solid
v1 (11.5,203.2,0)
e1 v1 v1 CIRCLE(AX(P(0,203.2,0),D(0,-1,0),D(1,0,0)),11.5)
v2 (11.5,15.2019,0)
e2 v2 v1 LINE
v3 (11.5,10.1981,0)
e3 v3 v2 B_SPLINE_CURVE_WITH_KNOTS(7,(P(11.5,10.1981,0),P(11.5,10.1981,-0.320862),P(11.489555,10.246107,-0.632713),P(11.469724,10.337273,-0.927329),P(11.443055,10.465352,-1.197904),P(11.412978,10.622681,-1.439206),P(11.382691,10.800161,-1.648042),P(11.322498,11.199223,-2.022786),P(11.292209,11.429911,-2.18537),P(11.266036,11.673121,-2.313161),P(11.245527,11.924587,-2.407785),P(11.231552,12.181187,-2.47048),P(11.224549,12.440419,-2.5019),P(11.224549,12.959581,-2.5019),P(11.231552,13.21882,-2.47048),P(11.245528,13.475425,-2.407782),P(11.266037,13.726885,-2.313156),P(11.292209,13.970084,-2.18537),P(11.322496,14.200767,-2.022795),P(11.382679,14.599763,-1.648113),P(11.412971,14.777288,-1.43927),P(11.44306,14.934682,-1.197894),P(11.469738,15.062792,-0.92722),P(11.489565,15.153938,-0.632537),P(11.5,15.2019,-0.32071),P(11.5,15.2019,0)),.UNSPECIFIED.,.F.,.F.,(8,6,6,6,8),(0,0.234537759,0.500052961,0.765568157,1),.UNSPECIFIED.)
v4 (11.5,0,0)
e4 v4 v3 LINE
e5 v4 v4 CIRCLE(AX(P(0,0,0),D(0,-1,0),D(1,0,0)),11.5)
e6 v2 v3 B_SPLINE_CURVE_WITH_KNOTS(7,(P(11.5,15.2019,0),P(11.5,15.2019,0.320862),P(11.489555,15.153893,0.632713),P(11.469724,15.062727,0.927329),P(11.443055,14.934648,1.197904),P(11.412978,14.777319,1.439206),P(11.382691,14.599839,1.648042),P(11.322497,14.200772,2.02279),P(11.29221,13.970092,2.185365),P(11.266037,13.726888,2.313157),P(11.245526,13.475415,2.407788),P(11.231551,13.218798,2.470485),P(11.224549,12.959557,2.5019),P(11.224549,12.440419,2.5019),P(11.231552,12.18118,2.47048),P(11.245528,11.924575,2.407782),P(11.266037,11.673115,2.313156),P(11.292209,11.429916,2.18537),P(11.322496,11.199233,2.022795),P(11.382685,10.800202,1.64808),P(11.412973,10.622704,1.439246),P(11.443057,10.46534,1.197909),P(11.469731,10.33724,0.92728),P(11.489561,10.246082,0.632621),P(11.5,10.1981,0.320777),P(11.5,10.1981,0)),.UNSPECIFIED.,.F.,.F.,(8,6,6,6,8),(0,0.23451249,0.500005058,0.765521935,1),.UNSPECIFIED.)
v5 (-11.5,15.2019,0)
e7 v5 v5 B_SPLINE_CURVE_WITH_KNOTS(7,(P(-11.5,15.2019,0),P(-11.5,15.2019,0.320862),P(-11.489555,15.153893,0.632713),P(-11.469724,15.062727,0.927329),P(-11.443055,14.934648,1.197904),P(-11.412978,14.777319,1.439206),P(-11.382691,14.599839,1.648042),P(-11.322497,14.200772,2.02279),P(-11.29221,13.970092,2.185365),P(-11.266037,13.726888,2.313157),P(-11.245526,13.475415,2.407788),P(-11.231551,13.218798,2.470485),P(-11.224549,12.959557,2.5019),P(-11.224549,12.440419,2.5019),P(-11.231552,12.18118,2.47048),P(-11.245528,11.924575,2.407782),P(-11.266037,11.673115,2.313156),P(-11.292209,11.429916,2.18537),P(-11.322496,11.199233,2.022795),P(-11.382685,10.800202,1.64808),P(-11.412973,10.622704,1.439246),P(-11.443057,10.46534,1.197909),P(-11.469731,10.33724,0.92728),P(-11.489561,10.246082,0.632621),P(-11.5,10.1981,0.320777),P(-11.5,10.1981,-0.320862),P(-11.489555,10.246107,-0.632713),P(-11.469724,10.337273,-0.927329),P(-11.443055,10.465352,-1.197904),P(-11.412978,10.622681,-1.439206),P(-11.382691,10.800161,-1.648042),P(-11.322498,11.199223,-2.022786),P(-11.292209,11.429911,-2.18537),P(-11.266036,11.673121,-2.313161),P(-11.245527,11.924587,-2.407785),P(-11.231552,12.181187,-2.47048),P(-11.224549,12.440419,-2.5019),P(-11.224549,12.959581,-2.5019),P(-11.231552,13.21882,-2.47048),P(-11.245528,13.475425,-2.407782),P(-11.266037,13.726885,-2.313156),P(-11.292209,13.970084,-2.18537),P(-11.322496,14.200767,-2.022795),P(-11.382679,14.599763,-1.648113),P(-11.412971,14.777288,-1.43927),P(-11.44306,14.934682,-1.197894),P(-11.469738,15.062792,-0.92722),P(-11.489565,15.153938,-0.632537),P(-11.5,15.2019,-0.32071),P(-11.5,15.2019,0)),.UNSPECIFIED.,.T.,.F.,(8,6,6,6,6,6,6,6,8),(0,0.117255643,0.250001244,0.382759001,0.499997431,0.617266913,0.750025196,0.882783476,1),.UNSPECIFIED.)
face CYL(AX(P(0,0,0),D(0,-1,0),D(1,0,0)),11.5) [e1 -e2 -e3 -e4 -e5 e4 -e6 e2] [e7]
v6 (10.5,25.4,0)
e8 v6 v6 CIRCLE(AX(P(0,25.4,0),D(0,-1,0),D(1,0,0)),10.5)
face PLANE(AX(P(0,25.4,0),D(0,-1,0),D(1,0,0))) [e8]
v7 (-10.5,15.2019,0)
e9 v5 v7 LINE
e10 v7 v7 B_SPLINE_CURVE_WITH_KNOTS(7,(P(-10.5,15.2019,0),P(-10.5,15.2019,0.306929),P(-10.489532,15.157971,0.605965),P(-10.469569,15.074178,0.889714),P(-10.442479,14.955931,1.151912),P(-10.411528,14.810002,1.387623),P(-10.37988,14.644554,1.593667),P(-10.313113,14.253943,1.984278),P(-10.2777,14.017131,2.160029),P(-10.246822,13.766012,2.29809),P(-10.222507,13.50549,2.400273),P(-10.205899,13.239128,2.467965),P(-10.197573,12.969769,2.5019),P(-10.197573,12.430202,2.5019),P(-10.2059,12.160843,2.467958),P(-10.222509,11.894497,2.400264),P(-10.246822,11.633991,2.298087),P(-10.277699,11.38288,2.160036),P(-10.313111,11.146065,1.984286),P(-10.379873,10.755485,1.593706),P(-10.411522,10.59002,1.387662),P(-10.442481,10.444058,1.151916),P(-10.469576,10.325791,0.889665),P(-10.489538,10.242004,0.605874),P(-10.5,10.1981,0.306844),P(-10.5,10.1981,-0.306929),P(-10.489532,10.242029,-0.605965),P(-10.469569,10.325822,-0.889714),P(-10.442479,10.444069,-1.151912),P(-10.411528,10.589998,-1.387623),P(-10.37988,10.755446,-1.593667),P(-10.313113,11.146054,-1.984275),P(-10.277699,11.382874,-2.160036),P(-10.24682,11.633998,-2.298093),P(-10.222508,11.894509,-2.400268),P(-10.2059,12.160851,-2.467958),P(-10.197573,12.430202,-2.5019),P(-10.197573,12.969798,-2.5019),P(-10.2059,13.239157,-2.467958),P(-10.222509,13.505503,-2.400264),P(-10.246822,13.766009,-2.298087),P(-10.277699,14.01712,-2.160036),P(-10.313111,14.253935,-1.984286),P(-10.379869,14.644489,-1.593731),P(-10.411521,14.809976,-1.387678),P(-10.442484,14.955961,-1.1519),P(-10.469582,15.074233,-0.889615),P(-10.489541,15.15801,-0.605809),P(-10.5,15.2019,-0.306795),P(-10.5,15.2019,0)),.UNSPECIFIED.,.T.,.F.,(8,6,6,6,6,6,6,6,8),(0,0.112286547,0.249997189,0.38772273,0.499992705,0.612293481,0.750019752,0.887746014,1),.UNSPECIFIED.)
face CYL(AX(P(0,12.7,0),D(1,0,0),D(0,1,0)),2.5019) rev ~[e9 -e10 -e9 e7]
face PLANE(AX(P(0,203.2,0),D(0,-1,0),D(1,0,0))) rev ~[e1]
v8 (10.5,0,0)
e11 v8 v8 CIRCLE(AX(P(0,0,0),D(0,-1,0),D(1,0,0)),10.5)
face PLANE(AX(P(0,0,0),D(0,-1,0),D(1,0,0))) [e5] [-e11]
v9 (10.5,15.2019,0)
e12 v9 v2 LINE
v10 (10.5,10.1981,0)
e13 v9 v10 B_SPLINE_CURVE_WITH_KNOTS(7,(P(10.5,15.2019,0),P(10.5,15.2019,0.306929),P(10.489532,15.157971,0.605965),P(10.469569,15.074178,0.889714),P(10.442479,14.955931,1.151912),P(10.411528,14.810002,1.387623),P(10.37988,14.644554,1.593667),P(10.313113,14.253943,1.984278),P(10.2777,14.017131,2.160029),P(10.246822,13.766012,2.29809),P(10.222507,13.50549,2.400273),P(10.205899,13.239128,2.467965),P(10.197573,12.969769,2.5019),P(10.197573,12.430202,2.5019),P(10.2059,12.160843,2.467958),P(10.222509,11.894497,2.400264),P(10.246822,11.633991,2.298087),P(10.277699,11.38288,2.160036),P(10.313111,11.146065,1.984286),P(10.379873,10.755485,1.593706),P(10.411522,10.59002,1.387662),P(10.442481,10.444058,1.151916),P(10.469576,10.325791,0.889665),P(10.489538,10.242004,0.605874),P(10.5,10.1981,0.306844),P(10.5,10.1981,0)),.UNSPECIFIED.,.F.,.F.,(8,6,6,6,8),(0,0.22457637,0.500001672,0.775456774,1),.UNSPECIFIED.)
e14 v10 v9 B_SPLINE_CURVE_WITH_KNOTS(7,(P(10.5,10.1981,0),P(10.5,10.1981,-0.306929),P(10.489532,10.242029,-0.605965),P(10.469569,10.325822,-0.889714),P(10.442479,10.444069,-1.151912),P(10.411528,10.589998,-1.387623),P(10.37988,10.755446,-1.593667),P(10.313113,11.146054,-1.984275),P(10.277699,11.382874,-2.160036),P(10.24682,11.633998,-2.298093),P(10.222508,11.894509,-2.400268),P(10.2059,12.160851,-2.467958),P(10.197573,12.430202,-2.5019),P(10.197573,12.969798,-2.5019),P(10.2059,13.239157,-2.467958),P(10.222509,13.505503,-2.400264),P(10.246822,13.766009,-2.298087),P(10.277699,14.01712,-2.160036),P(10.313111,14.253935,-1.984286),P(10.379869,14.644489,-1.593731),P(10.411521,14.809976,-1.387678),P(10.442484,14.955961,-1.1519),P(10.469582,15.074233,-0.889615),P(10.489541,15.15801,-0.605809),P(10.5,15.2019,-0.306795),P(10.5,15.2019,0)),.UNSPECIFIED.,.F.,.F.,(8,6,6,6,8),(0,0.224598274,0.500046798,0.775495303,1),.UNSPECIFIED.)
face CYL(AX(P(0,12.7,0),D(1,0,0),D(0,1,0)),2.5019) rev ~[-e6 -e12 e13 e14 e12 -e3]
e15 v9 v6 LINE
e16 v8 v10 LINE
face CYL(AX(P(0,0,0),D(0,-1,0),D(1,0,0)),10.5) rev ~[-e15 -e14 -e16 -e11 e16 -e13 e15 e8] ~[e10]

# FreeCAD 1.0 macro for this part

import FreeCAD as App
import Part
import Sketcher

V = App.Vector
Q = App.Units.Quantity

doc = App.newDocument("Part")
body = doc.addObject("PartDesign::Body", "Body")

sketch1 = doc.addObject("Sketcher::SketchObject", "Sketch")
body.addObject(sketch1)
sketch1.AttachmentSupport = (doc.XZ_Plane, [""])
sketch1.MapMode = "FlatFace"
sketch1.addGeometry(Part.Circle(V(0, 0, 0), V(0, 0, 1), 12), False)
sketch1.addConstraint(Sketcher.Constraint("Coincident", 0, 3, -1, 1))
sketch1.addConstraint(Sketcher.Constraint("Diameter", 0, 23.0))
pad1 = doc.addObject("PartDesign::Pad", "Pad")
body.addObject(pad1)
pad1.Profile = sketch1
pad1.Length = Q("8 in")
pad1.Reversed = True

sketch2 = doc.addObject("Sketcher::SketchObject", "Sketch001")
body.addObject(sketch2)
sketch2.AttachmentSupport = (doc.XZ_Plane, [""])
sketch2.MapMode = "FlatFace"
sketch2.addGeometry(Part.Circle(V(0, 0, 0), V(0, 0, 1), 10), False)
sketch2.addConstraint(Sketcher.Constraint("Coincident", 0, 3, -1, 1))
sketch2.addConstraint(Sketcher.Constraint("Diameter", 0, 21.0))
pocket1 = doc.addObject("PartDesign::Pocket", "Pocket")
body.addObject(pocket1)
pocket1.Profile = sketch2
pocket1.Length = Q("1 in")

sketch3 = doc.addObject("Sketcher::SketchObject", "Sketch002")
body.addObject(sketch3)
sketch3.AttachmentSupport = (doc.YZ_Plane, [""])
sketch3.MapMode = "FlatFace"
sketch3.addGeometry(Part.Circle(V(12.7, 0, 0), V(0, 0, 1), 2.5), False)
sketch3.addConstraint(Sketcher.Constraint("PointOnObject", 0, 3, -1))
sketch3.addConstraint(Sketcher.Constraint("Diameter", 0, Q("0.197 in")))
sketch3.addConstraint(Sketcher.Constraint("DistanceX", -1, 1, 0, 3, Q("0.5 in")))
pocket2 = doc.addObject("PartDesign::Pocket", "Pocket001")
body.addObject(pocket2)
pocket2.Profile = sketch3
pocket2.Length = Q("1 in")
pocket2.Midplane = True

doc.recompute()
